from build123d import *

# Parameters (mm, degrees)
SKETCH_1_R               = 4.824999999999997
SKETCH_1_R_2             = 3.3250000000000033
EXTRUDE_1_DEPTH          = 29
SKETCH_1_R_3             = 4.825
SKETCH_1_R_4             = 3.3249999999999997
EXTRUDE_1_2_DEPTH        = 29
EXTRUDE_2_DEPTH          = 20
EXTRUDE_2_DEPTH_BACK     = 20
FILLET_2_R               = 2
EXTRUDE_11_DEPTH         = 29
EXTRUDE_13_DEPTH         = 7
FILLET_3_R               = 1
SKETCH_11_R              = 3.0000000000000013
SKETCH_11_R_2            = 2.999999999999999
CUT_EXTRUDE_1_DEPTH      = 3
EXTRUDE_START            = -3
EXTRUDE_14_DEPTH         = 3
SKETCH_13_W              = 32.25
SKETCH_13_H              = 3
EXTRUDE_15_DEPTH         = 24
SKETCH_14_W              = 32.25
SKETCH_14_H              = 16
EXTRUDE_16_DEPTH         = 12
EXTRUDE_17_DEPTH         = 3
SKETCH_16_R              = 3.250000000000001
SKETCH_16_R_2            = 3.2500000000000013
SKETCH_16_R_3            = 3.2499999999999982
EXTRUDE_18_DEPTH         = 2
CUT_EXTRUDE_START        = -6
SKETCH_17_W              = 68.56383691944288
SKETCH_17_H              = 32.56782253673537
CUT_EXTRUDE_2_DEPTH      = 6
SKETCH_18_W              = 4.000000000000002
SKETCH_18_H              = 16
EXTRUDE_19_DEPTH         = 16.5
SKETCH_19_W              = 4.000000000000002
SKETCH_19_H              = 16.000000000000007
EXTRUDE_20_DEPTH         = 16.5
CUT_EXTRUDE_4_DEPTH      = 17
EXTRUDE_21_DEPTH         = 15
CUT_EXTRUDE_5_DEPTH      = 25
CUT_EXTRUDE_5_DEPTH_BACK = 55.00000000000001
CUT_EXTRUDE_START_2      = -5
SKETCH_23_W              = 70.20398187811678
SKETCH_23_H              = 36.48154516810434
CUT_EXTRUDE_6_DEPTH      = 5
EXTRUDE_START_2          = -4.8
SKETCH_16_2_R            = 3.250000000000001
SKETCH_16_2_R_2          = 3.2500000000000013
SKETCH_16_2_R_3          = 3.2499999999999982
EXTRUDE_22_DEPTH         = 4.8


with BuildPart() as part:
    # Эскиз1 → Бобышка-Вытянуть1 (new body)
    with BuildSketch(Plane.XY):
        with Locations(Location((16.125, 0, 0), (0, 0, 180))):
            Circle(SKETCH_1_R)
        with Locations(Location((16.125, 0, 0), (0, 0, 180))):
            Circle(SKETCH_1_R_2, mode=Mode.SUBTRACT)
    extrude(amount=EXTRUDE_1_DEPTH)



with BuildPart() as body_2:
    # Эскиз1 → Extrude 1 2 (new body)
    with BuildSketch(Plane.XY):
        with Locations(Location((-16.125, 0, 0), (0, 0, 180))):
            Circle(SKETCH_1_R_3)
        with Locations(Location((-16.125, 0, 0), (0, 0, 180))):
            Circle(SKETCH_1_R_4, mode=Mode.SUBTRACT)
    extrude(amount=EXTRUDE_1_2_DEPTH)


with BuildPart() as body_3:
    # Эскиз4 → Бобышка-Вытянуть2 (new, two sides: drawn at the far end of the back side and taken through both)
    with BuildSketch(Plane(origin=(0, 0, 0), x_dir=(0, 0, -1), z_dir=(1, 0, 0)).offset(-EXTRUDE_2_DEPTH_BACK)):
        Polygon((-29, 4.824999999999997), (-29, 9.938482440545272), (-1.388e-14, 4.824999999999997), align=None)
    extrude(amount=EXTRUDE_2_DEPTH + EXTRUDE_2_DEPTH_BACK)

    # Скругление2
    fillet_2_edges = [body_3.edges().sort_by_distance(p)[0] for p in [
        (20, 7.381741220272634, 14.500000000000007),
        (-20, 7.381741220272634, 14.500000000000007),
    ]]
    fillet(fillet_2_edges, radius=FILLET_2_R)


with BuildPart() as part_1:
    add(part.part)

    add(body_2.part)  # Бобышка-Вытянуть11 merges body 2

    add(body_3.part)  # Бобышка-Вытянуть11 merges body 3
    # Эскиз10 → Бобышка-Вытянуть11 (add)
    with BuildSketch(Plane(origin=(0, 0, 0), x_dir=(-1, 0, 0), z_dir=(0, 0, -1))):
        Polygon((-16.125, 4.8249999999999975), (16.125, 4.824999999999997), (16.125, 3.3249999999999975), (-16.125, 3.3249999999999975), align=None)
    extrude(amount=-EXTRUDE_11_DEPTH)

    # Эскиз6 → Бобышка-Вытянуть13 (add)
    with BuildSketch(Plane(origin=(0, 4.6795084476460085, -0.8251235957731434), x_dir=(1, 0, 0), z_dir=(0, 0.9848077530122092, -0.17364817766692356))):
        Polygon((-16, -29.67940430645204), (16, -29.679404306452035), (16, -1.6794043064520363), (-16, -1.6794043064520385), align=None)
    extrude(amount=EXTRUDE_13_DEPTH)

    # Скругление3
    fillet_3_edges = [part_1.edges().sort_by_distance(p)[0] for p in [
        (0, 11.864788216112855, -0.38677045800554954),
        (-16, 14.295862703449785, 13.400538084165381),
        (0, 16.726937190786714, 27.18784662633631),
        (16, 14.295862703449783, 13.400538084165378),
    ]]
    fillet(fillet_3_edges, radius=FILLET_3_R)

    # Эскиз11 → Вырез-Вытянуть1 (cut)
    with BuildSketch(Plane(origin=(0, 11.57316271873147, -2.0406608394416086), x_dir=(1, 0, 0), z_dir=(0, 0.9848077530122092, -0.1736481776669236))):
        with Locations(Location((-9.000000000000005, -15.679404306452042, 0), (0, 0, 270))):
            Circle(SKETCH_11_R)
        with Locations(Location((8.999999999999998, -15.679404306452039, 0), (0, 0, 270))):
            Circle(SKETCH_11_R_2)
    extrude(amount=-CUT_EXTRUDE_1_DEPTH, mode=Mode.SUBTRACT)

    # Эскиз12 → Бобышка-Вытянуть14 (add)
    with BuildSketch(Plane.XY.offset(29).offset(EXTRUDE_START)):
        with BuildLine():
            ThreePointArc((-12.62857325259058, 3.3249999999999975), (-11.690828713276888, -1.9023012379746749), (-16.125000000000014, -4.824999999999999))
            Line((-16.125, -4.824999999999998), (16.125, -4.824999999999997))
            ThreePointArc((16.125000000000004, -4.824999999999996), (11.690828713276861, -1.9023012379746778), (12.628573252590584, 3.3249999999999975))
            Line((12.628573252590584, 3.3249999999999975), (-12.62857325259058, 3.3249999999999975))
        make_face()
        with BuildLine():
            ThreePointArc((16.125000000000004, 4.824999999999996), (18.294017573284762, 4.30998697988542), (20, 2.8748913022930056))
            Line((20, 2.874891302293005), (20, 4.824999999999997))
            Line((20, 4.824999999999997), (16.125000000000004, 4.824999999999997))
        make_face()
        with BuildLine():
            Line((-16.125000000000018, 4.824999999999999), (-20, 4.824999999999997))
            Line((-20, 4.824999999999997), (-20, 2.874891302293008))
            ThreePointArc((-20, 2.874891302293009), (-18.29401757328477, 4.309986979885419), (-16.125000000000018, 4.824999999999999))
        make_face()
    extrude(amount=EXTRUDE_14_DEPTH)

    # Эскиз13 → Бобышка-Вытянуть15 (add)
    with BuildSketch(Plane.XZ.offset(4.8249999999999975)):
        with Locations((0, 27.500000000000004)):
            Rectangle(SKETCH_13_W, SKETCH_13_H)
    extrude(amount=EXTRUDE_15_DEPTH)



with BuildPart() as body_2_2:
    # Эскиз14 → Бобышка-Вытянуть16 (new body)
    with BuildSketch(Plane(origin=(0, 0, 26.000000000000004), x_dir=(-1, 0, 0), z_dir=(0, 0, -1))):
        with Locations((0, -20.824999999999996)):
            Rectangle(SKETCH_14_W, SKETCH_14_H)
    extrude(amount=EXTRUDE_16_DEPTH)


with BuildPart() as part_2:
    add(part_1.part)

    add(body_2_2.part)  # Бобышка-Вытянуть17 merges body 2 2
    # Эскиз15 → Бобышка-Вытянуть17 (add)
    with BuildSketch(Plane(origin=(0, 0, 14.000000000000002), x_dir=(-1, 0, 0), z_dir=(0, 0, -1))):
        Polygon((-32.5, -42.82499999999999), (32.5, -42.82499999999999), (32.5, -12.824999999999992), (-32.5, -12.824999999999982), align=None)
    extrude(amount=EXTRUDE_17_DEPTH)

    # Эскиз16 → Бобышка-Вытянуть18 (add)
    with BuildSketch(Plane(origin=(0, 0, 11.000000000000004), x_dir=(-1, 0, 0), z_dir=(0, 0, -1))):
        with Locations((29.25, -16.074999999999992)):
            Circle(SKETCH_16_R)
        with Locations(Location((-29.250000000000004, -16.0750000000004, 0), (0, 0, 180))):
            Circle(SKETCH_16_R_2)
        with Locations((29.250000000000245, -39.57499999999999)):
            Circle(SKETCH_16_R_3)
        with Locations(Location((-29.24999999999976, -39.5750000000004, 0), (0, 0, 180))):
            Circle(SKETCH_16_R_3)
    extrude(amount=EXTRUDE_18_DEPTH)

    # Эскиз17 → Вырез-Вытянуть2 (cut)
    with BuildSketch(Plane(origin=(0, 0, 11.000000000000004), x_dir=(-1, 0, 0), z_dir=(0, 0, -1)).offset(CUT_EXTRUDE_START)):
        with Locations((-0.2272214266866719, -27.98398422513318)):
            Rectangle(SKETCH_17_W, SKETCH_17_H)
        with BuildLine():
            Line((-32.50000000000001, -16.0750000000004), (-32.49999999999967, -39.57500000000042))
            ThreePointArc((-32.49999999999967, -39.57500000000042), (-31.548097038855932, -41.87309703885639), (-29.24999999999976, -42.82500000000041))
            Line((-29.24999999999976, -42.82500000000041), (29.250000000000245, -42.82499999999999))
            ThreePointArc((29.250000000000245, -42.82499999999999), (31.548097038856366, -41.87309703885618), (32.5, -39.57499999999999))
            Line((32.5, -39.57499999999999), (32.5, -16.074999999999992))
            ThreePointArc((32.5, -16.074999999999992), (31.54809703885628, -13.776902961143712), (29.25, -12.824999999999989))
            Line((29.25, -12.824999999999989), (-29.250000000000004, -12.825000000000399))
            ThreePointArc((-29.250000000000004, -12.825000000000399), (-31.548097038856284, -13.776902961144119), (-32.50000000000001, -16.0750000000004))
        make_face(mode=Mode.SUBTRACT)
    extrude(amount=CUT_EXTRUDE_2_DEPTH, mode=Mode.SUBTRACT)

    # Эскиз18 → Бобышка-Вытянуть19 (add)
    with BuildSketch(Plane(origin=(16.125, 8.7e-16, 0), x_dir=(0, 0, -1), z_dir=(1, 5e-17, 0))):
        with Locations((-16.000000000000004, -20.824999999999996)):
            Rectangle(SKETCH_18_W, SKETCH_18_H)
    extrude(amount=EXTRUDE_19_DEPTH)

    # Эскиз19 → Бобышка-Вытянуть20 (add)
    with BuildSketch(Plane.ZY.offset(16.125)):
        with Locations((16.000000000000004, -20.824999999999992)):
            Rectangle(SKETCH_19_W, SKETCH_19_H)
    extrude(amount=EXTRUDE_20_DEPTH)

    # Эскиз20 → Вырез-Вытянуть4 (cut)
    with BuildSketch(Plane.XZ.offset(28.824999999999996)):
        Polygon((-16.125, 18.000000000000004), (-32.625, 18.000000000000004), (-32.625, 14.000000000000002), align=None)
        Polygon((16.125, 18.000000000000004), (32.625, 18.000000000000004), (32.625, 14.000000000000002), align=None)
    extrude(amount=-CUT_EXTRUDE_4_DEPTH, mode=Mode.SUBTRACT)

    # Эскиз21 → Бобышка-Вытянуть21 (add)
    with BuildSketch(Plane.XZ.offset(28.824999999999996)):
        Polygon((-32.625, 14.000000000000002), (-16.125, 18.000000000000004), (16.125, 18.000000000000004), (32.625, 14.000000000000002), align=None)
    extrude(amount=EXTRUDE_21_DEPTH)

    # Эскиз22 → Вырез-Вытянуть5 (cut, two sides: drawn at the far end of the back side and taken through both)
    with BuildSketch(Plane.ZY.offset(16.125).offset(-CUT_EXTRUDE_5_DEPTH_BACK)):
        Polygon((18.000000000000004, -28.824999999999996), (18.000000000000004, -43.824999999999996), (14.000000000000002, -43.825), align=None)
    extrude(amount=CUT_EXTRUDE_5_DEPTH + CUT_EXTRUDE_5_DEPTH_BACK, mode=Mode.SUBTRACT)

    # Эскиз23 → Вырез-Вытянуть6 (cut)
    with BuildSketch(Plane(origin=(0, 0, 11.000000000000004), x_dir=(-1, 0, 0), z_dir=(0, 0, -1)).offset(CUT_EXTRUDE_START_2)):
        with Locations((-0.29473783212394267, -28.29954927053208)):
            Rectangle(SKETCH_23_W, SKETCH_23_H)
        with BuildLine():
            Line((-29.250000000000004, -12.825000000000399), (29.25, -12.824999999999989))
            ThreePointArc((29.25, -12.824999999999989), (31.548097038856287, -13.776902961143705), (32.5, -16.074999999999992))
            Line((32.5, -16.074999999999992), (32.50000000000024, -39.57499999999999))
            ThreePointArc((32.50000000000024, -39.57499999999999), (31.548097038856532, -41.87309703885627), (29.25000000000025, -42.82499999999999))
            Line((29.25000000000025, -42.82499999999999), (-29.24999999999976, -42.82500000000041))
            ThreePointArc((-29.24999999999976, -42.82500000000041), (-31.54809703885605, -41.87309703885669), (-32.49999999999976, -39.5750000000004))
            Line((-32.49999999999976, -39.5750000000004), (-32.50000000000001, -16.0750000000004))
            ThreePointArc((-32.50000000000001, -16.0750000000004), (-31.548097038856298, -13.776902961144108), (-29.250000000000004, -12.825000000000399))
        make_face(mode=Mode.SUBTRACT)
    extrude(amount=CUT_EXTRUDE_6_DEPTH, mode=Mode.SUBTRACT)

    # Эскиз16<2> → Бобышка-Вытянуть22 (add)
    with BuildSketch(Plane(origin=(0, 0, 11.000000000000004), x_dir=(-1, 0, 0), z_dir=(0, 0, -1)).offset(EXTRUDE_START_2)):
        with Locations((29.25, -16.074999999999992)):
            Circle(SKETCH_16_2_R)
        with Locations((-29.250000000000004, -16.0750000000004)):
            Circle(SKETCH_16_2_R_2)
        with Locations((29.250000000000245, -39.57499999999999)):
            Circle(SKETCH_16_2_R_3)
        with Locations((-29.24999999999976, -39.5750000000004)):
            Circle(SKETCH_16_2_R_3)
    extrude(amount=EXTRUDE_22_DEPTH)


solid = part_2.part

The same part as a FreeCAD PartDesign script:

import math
import FreeCAD as App
import Part
import Sketcher
from FreeCAD import Vector
Q = App.Units.Quantity


def edges_at(feature, points):
    """Names of the edges that pass closest to the given points."""
    edges = feature.Shape.Edges
    near = lambda p: min(range(len(edges)), key=lambda i: edges[i].distToShape(Part.Vertex(*p))[0])
    return sorted({f"Edge{near(p) + 1}" for p in points})

doc = App.newDocument("Part")
body = doc.addObject("PartDesign::Body", "Body")

# Sketch on XY plane
sketch1 = doc.addObject("Sketcher::SketchObject", "Sketch")
body.addObject(sketch1)
sketch1.AttachmentSupport = (doc.XY_Plane, [""])
sketch1.MapMode = "FlatFace"
sketch1.addGeometry([
    Part.Circle(Vector(16.1, 0, 0), Vector(0, 0, 1), 4.8),
    Part.Circle(Vector(16.1, 0, 0), Vector(0, 0, 1), 3.3),
], False)
sketch1.addConstraint([
    Sketcher.Constraint("Coincident", 1, 3, 0, 3),
    Sketcher.Constraint("PointOnObject", 0, 3, -1),
    Sketcher.Constraint("Diameter", 0, Q("9.65 mm")),
    Sketcher.Constraint("Diameter", 1, Q("6.65 mm")),
    Sketcher.Constraint("DistanceX", -1, 1, 0, 3, Q("16.125 mm")),
])
pad1 = doc.addObject("PartDesign::Pad", "Pad")
body.addObject(pad1)
pad1.Profile = sketch1
pad1.Length = 29
body2 = doc.addObject("PartDesign::Body", "Body001")

# Sketch on XY plane
sketch2 = doc.addObject("Sketcher::SketchObject", "Sketch001")
body2.addObject(sketch2)
sketch2.AttachmentSupport = (doc.getObject("XY_Plane001"), [""])
sketch2.MapMode = "FlatFace"
sketch2.addGeometry([
    Part.Circle(Vector(-16.1, 0, 0), Vector(0, 0, 1), 4.8),
    Part.Circle(Vector(-16.1, 0, 0), Vector(0, 0, 1), 3.3),
], False)
sketch2.addConstraint([
    Sketcher.Constraint("Coincident", 1, 3, 0, 3),
    Sketcher.Constraint("PointOnObject", 0, 3, -1),
    Sketcher.Constraint("Diameter", 0, Q("9.65 mm")),
    Sketcher.Constraint("Diameter", 1, Q("6.65 mm")),
    Sketcher.Constraint("DistanceX", 0, 3, -1, 1, Q("16.125 mm")),
])
pad2 = doc.addObject("PartDesign::Pad", "Pad001")
body2.addObject(pad2)
pad2.Profile = sketch2
pad2.Length = 29
body3 = doc.addObject("PartDesign::Body", "Body002")

# Sketch on YZ plane
sketch3 = doc.addObject("Sketcher::SketchObject", "Sketch002")
body3.addObject(sketch3)
sketch3.AttachmentSupport = (doc.getObject("YZ_Plane002"), [""])
sketch3.MapMode = "FlatFace"
sketch3.addGeometry([
    Part.LineSegment(Vector(10, 29, 0), Vector(5, 29, 0)),
    Part.LineSegment(Vector(5, 29, 0), Vector(5, 0, 0)),
    Part.LineSegment(Vector(5, 0, 0), Vector(10, 29, 0)),
], False)
sketch3.addConstraint([
    Sketcher.Constraint("Coincident", 0, 2, 1, 1),
    Sketcher.Constraint("Coincident", 1, 2, 2, 1),
    Sketcher.Constraint("Coincident", 2, 2, 0, 1),
    Sketcher.Constraint("Horizontal", 0),
    Sketcher.Constraint("Vertical", 1),
    Sketcher.Constraint("PointOnObject", 1, 2, -1),
    Sketcher.Constraint("DistanceY", 1, 2, 1, 1, Q("29 mm")),
    Sketcher.Constraint("Angle", 2, Q("80 deg")),
    Sketcher.Constraint("DistanceX", -1, 1, 0, 2, Q("4.825 mm")),
])
pad3 = doc.addObject("PartDesign::Pad", "Pad002")
body3.addObject(pad3)
pad3.Profile = sketch3
pad3.Type = "TwoLengths"
pad3.Length = 20
pad3.Length2 = 20
doc.recompute()

fillet = doc.addObject("PartDesign::Fillet", "Fillet")
body3.addObject(fillet)
fillet.Base = (pad3, edges_at(pad3, [(20, 7.382, 14.5), (-20, 7.382, 14.5)]))
fillet.Radius = 2
body.AllowCompound = True
doc.recompute()

boolean = doc.addObject("PartDesign::Boolean", "Boolean")
body.addObject(boolean)
boolean.Type = "Fuse"
boolean.addObjects([body2])
doc.recompute()

boolean2 = doc.addObject("PartDesign::Boolean", "Boolean001")
body.addObject(boolean2)
boolean2.Type = "Fuse"
boolean2.addObjects([body3])

# Sketch on XY plane
sketch4 = doc.addObject("Sketcher::SketchObject", "Sketch003")
body.addObject(sketch4)
sketch4.AttachmentSupport = (doc.XY_Plane, [""])
sketch4.MapMode = "FlatFace"
sketch4.addGeometry([
    Part.LineSegment(Vector(-16.1, 4.8, 0), Vector(16.1, 4.8, 0)),
    Part.LineSegment(Vector(16.1, 4.8, 0), Vector(16.1, 3.3, 0)),
    Part.LineSegment(Vector(16.1, 3.3, 0), Vector(-16.1, 3.3, 0)),
    Part.LineSegment(Vector(-16.1, 3.3, 0), Vector(-16.1, 4.8, 0)),
], False)
sketch4.addConstraint([
    Sketcher.Constraint("Coincident", 0, 2, 1, 1),
    Sketcher.Constraint("Coincident", 1, 2, 2, 1),
    Sketcher.Constraint("Coincident", 2, 2, 3, 1),
    Sketcher.Constraint("Coincident", 3, 2, 0, 1),
    Sketcher.Constraint("Horizontal", 0),
    Sketcher.Constraint("Vertical", 1),
    Sketcher.Constraint("Horizontal", 2),
    Sketcher.Constraint("Vertical", 3),
    Sketcher.Constraint("DistanceY", 1, 2, 1, 1, Q("1.5 mm")),
    Sketcher.Constraint("DistanceX", 0, 1, 0, 2, Q("32.25 mm")),
    Sketcher.Constraint("DistanceX", -1, 1, 0, 2, Q("16.125 mm")),
    Sketcher.Constraint("DistanceY", -1, 1, 0, 2, Q("4.825 mm")),
])
pad4 = doc.addObject("PartDesign::Pad", "Pad003")
body.addObject(pad4)
pad4.Profile = sketch4
pad4.Length = 29

# Sketch on an angled plane
sketch5 = doc.addObject("Sketcher::SketchObject", "Sketch004")
body.addObject(sketch5)
sketch5.Placement = App.Placement(Vector(0, 4.679508, -0.825124), App.Rotation(Vector(1, 0, 0), Vector(0, -0.173648178, -0.984807753), Vector(0, 0.984807753, -0.173648178), "ZXY"))
sketch5.addGeometry([
    Part.LineSegment(Vector(-16, -30, 0), Vector(16, -30, 0)),
    Part.LineSegment(Vector(16, -30, 0), Vector(16, -2, 0)),
    Part.LineSegment(Vector(16, -2, 0), Vector(-16, -2, 0)),
    Part.LineSegment(Vector(-16, -2, 0), Vector(-16, -30, 0)),
], False)
sketch5.addConstraint([
    Sketcher.Constraint("Coincident", 0, 2, 1, 1),
    Sketcher.Constraint("Coincident", 1, 2, 2, 1),
    Sketcher.Constraint("Coincident", 2, 2, 3, 1),
    Sketcher.Constraint("Coincident", 3, 2, 0, 1),
    Sketcher.Constraint("Horizontal", 0),
    Sketcher.Constraint("Vertical", 1),
    Sketcher.Constraint("Horizontal", 2),
    Sketcher.Constraint("Vertical", 3),
    Sketcher.Constraint("DistanceX", 0, 1, 0, 2, Q("32 mm")),
    Sketcher.Constraint("DistanceY", 1, 1, 1, 2, Q("28 mm")),
    Sketcher.Constraint("DistanceX", -1, 1, 0, 2, Q("16 mm")),
    Sketcher.Constraint("DistanceY", 0, 2, -1, 1, Q("29.679404 mm")),
])
pad5 = doc.addObject("PartDesign::Pad", "Pad004")
body.addObject(pad5)
pad5.Profile = sketch5
pad5.Length = 7
doc.recompute()

fillet2 = doc.addObject("PartDesign::Fillet", "Fillet001")
body.addObject(fillet2)
fillet2.Base = (pad5, edges_at(pad5, [
    (0, 11.865, -0.387),
    (-16, 14.296, 13.401),
    (0, 16.727, 27.188),
    (16, 14.296, 13.401),
]))
fillet2.Radius = 1

# Sketch on an angled plane
sketch6 = doc.addObject("Sketcher::SketchObject", "Sketch005")
body.addObject(sketch6)
sketch6.Placement = App.Placement(Vector(0, 11.573163, -2.040661), App.Rotation(Vector(1, 0, 0), Vector(0, -0.173648178, -0.984807753), Vector(0, 0.984807753, -0.173648178), "ZXY"))
sketch6.addGeometry([
    Part.Circle(Vector(-9, -15.7, 0), Vector(0, 0, 1), 3),
    Part.Circle(Vector(9, -15.7, 0), Vector(0, 0, 1), 3),
], False)
sketch6.addConstraint([
    Sketcher.Constraint("Equal", 0, 1),
    Sketcher.Constraint("Symmetric", 0, 3, 1, 3, -2),
    Sketcher.Constraint("Diameter", 0, Q("6 mm")),
    Sketcher.Constraint("DistanceX", 0, 3, -1, 1, Q("9 mm")),
    Sketcher.Constraint("DistanceY", 0, 3, -1, 1, Q("15.679404 mm")),
])
pocket1 = doc.addObject("PartDesign::Pocket", "Pocket")
body.addObject(pocket1)
pocket1.Profile = sketch6
pocket1.Length = 3

# Sketch on XY plane
sketch7 = doc.addObject("Sketcher::SketchObject", "Sketch006")
body.addObject(sketch7)
sketch7.AttachmentSupport = (doc.XY_Plane, [""])
sketch7.MapMode = "FlatFace"
sketch7.AttachmentOffset = App.Placement(Vector(0, 0, 26), App.Rotation())
sketch7.addGeometry([
    Part.ArcOfCircle(Part.Circle(Vector(-16.1, 0, 0), Vector(0, 0, 1), 4.8), math.radians(-90), math.radians(44)),  # 0
    Part.LineSegment(Vector(-16.1, -4.8, 0), Vector(16.1, -4.8, 0)),  # 1
    Part.ArcOfCircle(Part.Circle(Vector(16.1, 0, 0), Vector(0, 0, 1), 4.8), math.radians(136), math.radians(270)),  # 2
    Part.LineSegment(Vector(12.6, 3.3, 0), Vector(-12.6, 3.3, 0)),  # 3
    Part.ArcOfCircle(Part.Circle(Vector(16.1, 0, 0), Vector(0, 0, 1), 4.8), math.radians(37), math.radians(90)),  # 4
    Part.LineSegment(Vector(20, 2.9, 0), Vector(20, 4.8, 0)),  # 5
    Part.LineSegment(Vector(20, 4.8, 0), Vector(16.1, 4.8, 0)),  # 6
    Part.LineSegment(Vector(-16.1, 4.8, 0), Vector(-20, 4.8, 0)),  # 7
    Part.LineSegment(Vector(-20, 4.8, 0), Vector(-20, 2.9, 0)),  # 8
    Part.ArcOfCircle(Part.Circle(Vector(-16.1, 0, 0), Vector(0, 0, 1), 4.8), math.radians(90), math.radians(143)),  # 9
], False)
sketch7.addConstraint([
    Sketcher.Constraint("Tangent", 0, 1, 1, 1),
    Sketcher.Constraint("Tangent", 1, 2, 2, 2),
    Sketcher.Constraint("Coincident", 2, 1, 3, 1),
    Sketcher.Constraint("Coincident", 3, 2, 0, 2),
    Sketcher.Constraint("Coincident", 4, 1, 5, 1),
    Sketcher.Constraint("Coincident", 5, 2, 6, 1),
    Sketcher.Constraint("Tangent", 6, 2, 4, 2),
    Sketcher.Constraint("Coincident", 7, 2, 8, 1),
    Sketcher.Constraint("Coincident", 8, 2, 9, 2),
    Sketcher.Constraint("Tangent", 9, 1, 7, 1),
    Sketcher.Constraint("Horizontal", 1),
    Sketcher.Constraint("Horizontal", 3),
    Sketcher.Constraint("Vertical", 5),
    Sketcher.Constraint("Horizontal", 6),
    Sketcher.Constraint("Horizontal", 7),
    Sketcher.Constraint("Vertical", 8),
    Sketcher.Constraint("Coincident", 4, 3, 2, 3),
    Sketcher.Constraint("Coincident", 9, 3, 0, 3),
    Sketcher.Constraint("Equal", 0, 2),
    Sketcher.Constraint("Equal", 2, 4),
    Sketcher.Constraint("Equal", 4, 9),
    Sketcher.Constraint("Symmetric", 0, 3, 2, 3, -1, 1),
    Sketcher.Constraint("Horizontal", 4, 1, 8, 2),
    Sketcher.Constraint("DistanceX", -1, 1, 4, 1, Q("20 mm")),
    Sketcher.Constraint("Radius", 0, Q("4.825 mm")),
    Sketcher.Constraint("DistanceX", 1, 1, 1, 2, Q("32.25 mm")),
    Sketcher.Constraint("DistanceY", 2, 1, 5, 2, Q("1.5 mm")),
])
pad6 = doc.addObject("PartDesign::Pad", "Pad005")
body.addObject(pad6)
pad6.Profile = sketch7
pad6.Length = 3

# Sketch on XZ plane
sketch8 = doc.addObject("Sketcher::SketchObject", "Sketch007")
body.addObject(sketch8)
sketch8.AttachmentSupport = (doc.XZ_Plane, [""])
sketch8.MapMode = "FlatFace"
sketch8.AttachmentOffset = App.Placement(Vector(0, 0, 4.825), App.Rotation())
sketch8.addGeometry([
    Part.LineSegment(Vector(-16.1, 29, 0), Vector(-16.1, 26, 0)),
    Part.LineSegment(Vector(-16.1, 26, 0), Vector(16.1, 26, 0)),
    Part.LineSegment(Vector(16.1, 26, 0), Vector(16.1, 29, 0)),
    Part.LineSegment(Vector(16.1, 29, 0), Vector(-16.1, 29, 0)),
], False)
sketch8.addConstraint([
    Sketcher.Constraint("Coincident", 0, 2, 1, 1),
    Sketcher.Constraint("Coincident", 1, 2, 2, 1),
    Sketcher.Constraint("Coincident", 2, 2, 3, 1),
    Sketcher.Constraint("Coincident", 3, 2, 0, 1),
    Sketcher.Constraint("Vertical", 0),
    Sketcher.Constraint("Horizontal", 1),
    Sketcher.Constraint("Vertical", 2),
    Sketcher.Constraint("Horizontal", 3),
    Sketcher.Constraint("DistanceY", 0, 2, 0, 1, Q("3 mm")),
    Sketcher.Constraint("DistanceY", -1, 1, 0, 2, Q("26 mm")),
    Sketcher.Constraint("DistanceX", 1, 1, 1, 2, Q("32.25 mm")),
    Sketcher.Constraint("DistanceX", 0, 2, -1, 1, Q("16.125 mm")),
])
pad7 = doc.addObject("PartDesign::Pad", "Pad006")
body.addObject(pad7)
pad7.Profile = sketch8
pad7.Length = 24
body4 = doc.addObject("PartDesign::Body", "Body003")

# Sketch on XY plane
sketch9 = doc.addObject("Sketcher::SketchObject", "Sketch008")
body4.addObject(sketch9)
sketch9.AttachmentSupport = (doc.getObject("XY_Plane003"), [""])
sketch9.MapMode = "FlatFace"
sketch9.AttachmentOffset = App.Placement(Vector(0, 0, 26), App.Rotation())
sketch9.addGeometry([
    Part.LineSegment(Vector(16, -13, 0), Vector(16, -29, 0)),
    Part.LineSegment(Vector(16, -29, 0), Vector(-16, -29, 0)),
    Part.LineSegment(Vector(-16, -29, 0), Vector(-16, -13, 0)),
    Part.LineSegment(Vector(-16, -13, 0), Vector(16, -13, 0)),
], False)
sketch9.addConstraint([
    Sketcher.Constraint("Coincident", 0, 2, 1, 1),
    Sketcher.Constraint("Coincident", 1, 2, 2, 1),
    Sketcher.Constraint("Coincident", 2, 2, 3, 1),
    Sketcher.Constraint("Coincident", 3, 2, 0, 1),
    Sketcher.Constraint("Vertical", 0),
    Sketcher.Constraint("Horizontal", 1),
    Sketcher.Constraint("Vertical", 2),
    Sketcher.Constraint("Horizontal", 3),
    Sketcher.Constraint("DistanceY", 0, 2, 0, 1, Q("16 mm")),
    Sketcher.Constraint("DistanceX", 1, 2, 1, 1, Q("32.25 mm")),
    Sketcher.Constraint("DistanceX", -1, 1, 0, 2, Q("16.125 mm")),
    Sketcher.Constraint("DistanceY", 0, 2, -1, 1, Q("28.825 mm")),
])
pad8 = doc.addObject("PartDesign::Pad", "Pad007")
body4.addObject(pad8)
pad8.Profile = sketch9
pad8.Length = 12
pad8.Reversed = True
doc.recompute()

boolean3 = doc.addObject("PartDesign::Boolean", "Boolean002")
body.addObject(boolean3)
boolean3.Type = "Fuse"
boolean3.addObjects([body4])

# Sketch on XY plane
sketch10 = doc.addObject("Sketcher::SketchObject", "Sketch009")
body.addObject(sketch10)
sketch10.AttachmentSupport = (doc.XY_Plane, [""])
sketch10.MapMode = "FlatFace"
sketch10.AttachmentOffset = App.Placement(Vector(0, 0, 14), App.Rotation())
sketch10.addGeometry([
    Part.LineSegment(Vector(32, -43, 0), Vector(-32, -43, 0)),
    Part.LineSegment(Vector(-32, -43, 0), Vector(-32, -13, 0)),
    Part.LineSegment(Vector(-32, -13, 0), Vector(32, -13, 0)),
    Part.LineSegment(Vector(32, -13, 0), Vector(32, -43, 0)),
], False)
sketch10.addConstraint([
    Sketcher.Constraint("Coincident", 0, 2, 1, 1),
    Sketcher.Constraint("Coincident", 1, 2, 2, 1),
    Sketcher.Constraint("Coincident", 2, 2, 3, 1),
    Sketcher.Constraint("Coincident", 3, 2, 0, 1),
    Sketcher.Constraint("Horizontal", 0),
    Sketcher.Constraint("Vertical", 1),
    Sketcher.Constraint("Horizontal", 2),
    Sketcher.Constraint("Vertical", 3),
    Sketcher.Constraint("DistanceX", 0, 2, 0, 1, Q("65 mm")),
    Sketcher.Constraint("DistanceY", 1, 1, 1, 2, Q("30 mm")),
    Sketcher.Constraint("DistanceX", 0, 2, -1, 1, Q("32.5 mm")),
    Sketcher.Constraint("DistanceY", 0, 2, -1, 1, Q("42.825 mm")),
])
pad9 = doc.addObject("PartDesign::Pad", "Pad008")
body.addObject(pad9)
pad9.Profile = sketch10
pad9.Length = 3
pad9.Reversed = True

# Sketch on XY plane
sketch11 = doc.addObject("Sketcher::SketchObject", "Sketch010")
body.addObject(sketch11)
sketch11.AttachmentSupport = (doc.XY_Plane, [""])
sketch11.MapMode = "FlatFace"
sketch11.AttachmentOffset = App.Placement(Vector(0, 0, 11), App.Rotation())
sketch11.addGeometry([
    Part.Circle(Vector(-29.2, -16.1, 0), Vector(0, 0, 1), 3.2),
    Part.Circle(Vector(29.2, -16.1, 0), Vector(0, 0, 1), 3.2),
    Part.Circle(Vector(-29.2, -39.6, 0), Vector(0, 0, 1), 3.2),
    Part.Circle(Vector(29.2, -39.6, 0), Vector(0, 0, 1), 3.2),
], False)
sketch11.addConstraint([
    Sketcher.Constraint("Equal", 0, 1),
    Sketcher.Constraint("Equal", 1, 2),
    Sketcher.Constraint("Equal", 2, 3),
    Sketcher.Constraint("Symmetric", 0, 3, 1, 3, -2),
    Sketcher.Constraint("Symmetric", 2, 3, 3, 3, -2),
    Sketcher.Constraint("Vertical", 0, 3, 2, 3),
    Sketcher.Constraint("Diameter", 0, Q("6.5 mm")),
    Sketcher.Constraint("DistanceX", 0, 3, 1, 3, Q("58.5 mm")),
    Sketcher.Constraint("DistanceY", 2, 3, 0, 3, Q("23.5 mm")),
    Sketcher.Constraint("DistanceY", 0, 3, -1, 1, Q("16.075 mm")),
])
pad10 = doc.addObject("PartDesign::Pad", "Pad009")
body.addObject(pad10)
pad10.Profile = sketch11
pad10.Length = 2
pad10.Reversed = True

# Sketch on XY plane
sketch12 = doc.addObject("Sketcher::SketchObject", "Sketch011")
body.addObject(sketch12)
sketch12.AttachmentSupport = (doc.XY_Plane, [""])
sketch12.MapMode = "FlatFace"
sketch12.AttachmentOffset = App.Placement(Vector(0, 0, 17), App.Rotation())
sketch12.addGeometry([
    Part.LineSegment(Vector(34.5, -11.7, 0), Vector(34.5, -44.3, 0)),  # 0
    Part.LineSegment(Vector(34.5, -44.3, 0), Vector(-34.1, -44.3, 0)),  # 1
    Part.LineSegment(Vector(-34.1, -44.3, 0), Vector(-34.1, -11.7, 0)),  # 2
    Part.LineSegment(Vector(-34.1, -11.7, 0), Vector(34.5, -11.7, 0)),  # 3
    Part.LineSegment(Vector(32.5, -39.6, 0), Vector(32.5, -16.1, 0)),  # 4
    Part.ArcOfCircle(Part.Circle(Vector(29.2, -16.1, 0), Vector(0, 0, 1), 3.2), math.radians(0), math.radians(90)),  # 5
    Part.LineSegment(Vector(29.2, -12.8, 0), Vector(-29.2, -12.8, 0)),  # 6
    Part.ArcOfCircle(Part.Circle(Vector(-29.2, -16.1, 0), Vector(0, 0, 1), 3.2), math.radians(90), math.radians(180)),  # 7
    Part.LineSegment(Vector(-32.5, -16.1, 0), Vector(-32.5, -39.6, 0)),  # 8
    Part.ArcOfCircle(Part.Circle(Vector(-29.2, -39.6, 0), Vector(0, 0, 1), 3.2), math.radians(180), math.radians(270)),  # 9
    Part.LineSegment(Vector(-29.2, -42.8, 0), Vector(29.2, -42.8, 0)),  # 10
    Part.ArcOfCircle(Part.Circle(Vector(29.2, -39.6, 0), Vector(0, 0, 1), 3.2), math.radians(-90), math.radians(0)),  # 11
], False)
sketch12.addConstraint([
    Sketcher.Constraint("Coincident", 0, 2, 1, 1),
    Sketcher.Constraint("Coincident", 1, 2, 2, 1),
    Sketcher.Constraint("Coincident", 2, 2, 3, 1),
    Sketcher.Constraint("Coincident", 3, 2, 0, 1),
    Sketcher.Constraint("Tangent", 4, 2, 5, 1),
    Sketcher.Constraint("Tangent", 5, 2, 6, 1),
    Sketcher.Constraint("Tangent", 6, 2, 7, 1),
    Sketcher.Constraint("Tangent", 7, 2, 8, 1),
    Sketcher.Constraint("Tangent", 8, 2, 9, 1),
    Sketcher.Constraint("Tangent", 9, 2, 10, 1),
    Sketcher.Constraint("Tangent", 10, 2, 11, 1),
    Sketcher.Constraint("Tangent", 11, 2, 4, 1),
    Sketcher.Constraint("Vertical", 0),
    Sketcher.Constraint("Horizontal", 1),
    Sketcher.Constraint("Vertical", 2),
    Sketcher.Constraint("Horizontal", 3),
    Sketcher.Constraint("Vertical", 4),
    Sketcher.Constraint("Horizontal", 6),
    Sketcher.Constraint("Vertical", 8),
    Sketcher.Constraint("Horizontal", 10),
    Sketcher.Constraint("Equal", 5, 7),
    Sketcher.Constraint("Equal", 7, 9),
    Sketcher.Constraint("Equal", 9, 11),
    Sketcher.Constraint("Radius", 5, Q("3.25 mm")),
    Sketcher.Constraint("DistanceX", 6, 2, 6, 1, Q("58.5 mm")),
    Sketcher.Constraint("DistanceY", 4, 1, 4, 2, Q("23.5 mm")),
    Sketcher.Constraint("DistanceX", -1, 1, 4, 2, Q("32.5 mm")),
    Sketcher.Constraint("DistanceY", 5, 3, -1, 1, Q("16.075 mm")),
    Sketcher.Constraint("DistanceX", 1, 2, 1, 1, Q("68.563837 mm")),
    Sketcher.Constraint("DistanceY", 0, 2, 0, 1, Q("32.567823 mm")),
    Sketcher.Constraint("DistanceX", -1, 1, 0, 2, Q("34.50914 mm")),
    Sketcher.Constraint("DistanceY", 0, 2, -1, 1, Q("44.267895 mm")),
])
pocket2 = doc.addObject("PartDesign::Pocket", "Pocket001")
body.addObject(pocket2)
pocket2.Profile = sketch12
pocket2.Length = 6

# Sketch on YZ plane
sketch13 = doc.addObject("Sketcher::SketchObject", "Sketch012")
body.addObject(sketch13)
sketch13.AttachmentSupport = (doc.YZ_Plane, [""])
sketch13.MapMode = "FlatFace"
sketch13.AttachmentOffset = App.Placement(Vector(0, 0, 16.125), App.Rotation())
sketch13.addGeometry([
    Part.LineSegment(Vector(-12.8, 18, 0), Vector(-28.8, 18, 0)),
    Part.LineSegment(Vector(-28.8, 18, 0), Vector(-28.8, 14, 0)),
    Part.LineSegment(Vector(-28.8, 14, 0), Vector(-12.8, 14, 0)),
    Part.LineSegment(Vector(-12.8, 14, 0), Vector(-12.8, 18, 0)),
], False)
sketch13.addConstraint([
    Sketcher.Constraint("Coincident", 0, 2, 1, 1),
    Sketcher.Constraint("Coincident", 1, 2, 2, 1),
    Sketcher.Constraint("Coincident", 2, 2, 3, 1),
    Sketcher.Constraint("Coincident", 3, 2, 0, 1),
    Sketcher.Constraint("Horizontal", 0),
    Sketcher.Constraint("Vertical", 1),
    Sketcher.Constraint("Horizontal", 2),
    Sketcher.Constraint("Vertical", 3),
    Sketcher.Constraint("DistanceX", 0, 2, 0, 1, Q("16 mm")),
    Sketcher.Constraint("DistanceY", 1, 2, 1, 1, Q("4 mm")),
    Sketcher.Constraint("DistanceY", -1, 1, 0, 2, Q("18 mm")),
    Sketcher.Constraint("DistanceX", 0, 2, -1, 1, Q("28.825 mm")),
])
pad11 = doc.addObject("PartDesign::Pad", "Pad010")
body.addObject(pad11)
pad11.Profile = sketch13
pad11.Length = 16.5

# Sketch on YZ plane
sketch14 = doc.addObject("Sketcher::SketchObject", "Sketch013")
body.addObject(sketch14)
sketch14.AttachmentSupport = (doc.YZ_Plane, [""])
sketch14.MapMode = "FlatFace"
sketch14.AttachmentOffset = App.Placement(Vector(0, 0, -16.125), App.Rotation())
sketch14.addGeometry([
    Part.LineSegment(Vector(-12.8, 14, 0), Vector(-28.8, 14, 0)),
    Part.LineSegment(Vector(-28.8, 14, 0), Vector(-28.8, 18, 0)),
    Part.LineSegment(Vector(-28.8, 18, 0), Vector(-12.8, 18, 0)),
    Part.LineSegment(Vector(-12.8, 18, 0), Vector(-12.8, 14, 0)),
], False)
sketch14.addConstraint([
    Sketcher.Constraint("Coincident", 0, 2, 1, 1),
    Sketcher.Constraint("Coincident", 1, 2, 2, 1),
    Sketcher.Constraint("Coincident", 2, 2, 3, 1),
    Sketcher.Constraint("Coincident", 3, 2, 0, 1),
    Sketcher.Constraint("Horizontal", 0),
    Sketcher.Constraint("Vertical", 1),
    Sketcher.Constraint("Horizontal", 2),
    Sketcher.Constraint("Vertical", 3),
    Sketcher.Constraint("DistanceX", 0, 2, 0, 1, Q("16 mm")),
    Sketcher.Constraint("DistanceY", 1, 1, 1, 2, Q("4 mm")),
    Sketcher.Constraint("DistanceY", -1, 1, 0, 2, Q("14 mm")),
    Sketcher.Constraint("DistanceX", 0, 2, -1, 1, Q("28.825 mm")),
])
pad12 = doc.addObject("PartDesign::Pad", "Pad011")
body.addObject(pad12)
pad12.Profile = sketch14
pad12.Length = 16.5
pad12.Reversed = True

# Sketch on XZ plane
sketch15 = doc.addObject("Sketcher::SketchObject", "Sketch014")
body.addObject(sketch15)
sketch15.AttachmentSupport = (doc.XZ_Plane, [""])
sketch15.MapMode = "FlatFace"
sketch15.AttachmentOffset = App.Placement(Vector(0, 0, 28.825), App.Rotation())
sketch15.addGeometry([
    Part.LineSegment(Vector(-16.1, 18, 0), Vector(-32.6, 18, 0)),  # 0
    Part.LineSegment(Vector(-32.6, 18, 0), Vector(-32.6, 14, 0)),  # 1
    Part.LineSegment(Vector(-32.6, 14, 0), Vector(-16.1, 18, 0)),  # 2
    Part.LineSegment(Vector(32.6, 18, 0), Vector(16.1, 18, 0)),  # 3
    Part.LineSegment(Vector(16.1, 18, 0), Vector(32.6, 14, 0)),  # 4
    Part.LineSegment(Vector(32.6, 14, 0), Vector(32.6, 18, 0)),  # 5
], False)
sketch15.addConstraint([
    Sketcher.Constraint("Coincident", 0, 2, 1, 1),
    Sketcher.Constraint("Coincident", 1, 2, 2, 1),
    Sketcher.Constraint("Coincident", 2, 2, 0, 1),
    Sketcher.Constraint("Coincident", 3, 2, 4, 1),
    Sketcher.Constraint("Coincident", 4, 2, 5, 1),
    Sketcher.Constraint("Coincident", 5, 2, 3, 1),
    Sketcher.Constraint("Horizontal", 0),
    Sketcher.Constraint("Vertical", 1),
    Sketcher.Constraint("Horizontal", 3),
    Sketcher.Constraint("Vertical", 5),
    Sketcher.Constraint("Symmetric", 2, 2, 3, 2, -2),
    Sketcher.Constraint("Symmetric", 1, 2, 4, 2, -2),
    Sketcher.Constraint("DistanceY", 1, 2, 1, 1, Q("4 mm")),
    Sketcher.Constraint("DistanceX", 0, 2, 0, 1, Q("16.5 mm")),
    Sketcher.Constraint("DistanceY", -1, 1, 0, 2, Q("18 mm")),
    Sketcher.Constraint("DistanceX", 2, 2, 3, 2, Q("32.25 mm")),
])
pocket3 = doc.addObject("PartDesign::Pocket", "Pocket002")
body.addObject(pocket3)
pocket3.Profile = sketch15
pocket3.Length = 17

# Sketch on XZ plane
sketch16 = doc.addObject("Sketcher::SketchObject", "Sketch015")
body.addObject(sketch16)
sketch16.AttachmentSupport = (doc.XZ_Plane, [""])
sketch16.MapMode = "FlatFace"
sketch16.AttachmentOffset = App.Placement(Vector(0, 0, 28.825), App.Rotation())
sketch16.addGeometry([
    Part.LineSegment(Vector(-16, 18, 0), Vector(-33, 14, 0)),
    Part.LineSegment(Vector(-33, 14, 0), Vector(33, 14, 0)),
    Part.LineSegment(Vector(33, 14, 0), Vector(16, 18, 0)),
    Part.LineSegment(Vector(16, 18, 0), Vector(-16, 18, 0)),
], False)
sketch16.addConstraint([
    Sketcher.Constraint("Coincident", 0, 2, 1, 1),
    Sketcher.Constraint("Coincident", 1, 2, 2, 1),
    Sketcher.Constraint("Coincident", 2, 2, 3, 1),
    Sketcher.Constraint("Coincident", 3, 2, 0, 1),
    Sketcher.Constraint("Horizontal", 1),
    Sketcher.Constraint("Horizontal", 3),
    Sketcher.Constraint("Equal", 0, 2),
    Sketcher.Constraint("DistanceY", -1, 1, 0, 2, Q("14 mm")),
    Sketcher.Constraint("DistanceY", -1, 1, 2, 2, Q("18 mm")),
    Sketcher.Constraint("DistanceX", 1, 1, 1, 2, Q("65.25 mm")),
    Sketcher.Constraint("DistanceX", 3, 2, 3, 1, Q("32.25 mm")),
    Sketcher.Constraint("DistanceX", 0, 2, -1, 1, Q("32.625 mm")),
])
pad13 = doc.addObject("PartDesign::Pad", "Pad012")
body.addObject(pad13)
pad13.Profile = sketch16
pad13.Length = 15

# Sketch on YZ plane
sketch17 = doc.addObject("Sketcher::SketchObject", "Sketch016")
body.addObject(sketch17)
sketch17.AttachmentSupport = (doc.YZ_Plane, [""])
sketch17.MapMode = "FlatFace"
sketch17.AttachmentOffset = App.Placement(Vector(0, 0, -16.125), App.Rotation())
sketch17.addGeometry([
    Part.LineSegment(Vector(-43.8, 18, 0), Vector(-28.8, 18, 0)),
    Part.LineSegment(Vector(-28.8, 18, 0), Vector(-43.8, 14, 0)),
    Part.LineSegment(Vector(-43.8, 14, 0), Vector(-43.8, 18, 0)),
], False)
sketch17.addConstraint([
    Sketcher.Constraint("Coincident", 0, 2, 1, 1),
    Sketcher.Constraint("Coincident", 1, 2, 2, 1),
    Sketcher.Constraint("Coincident", 2, 2, 0, 1),
    Sketcher.Constraint("Horizontal", 0),
    Sketcher.Constraint("Vertical", 2),
    Sketcher.Constraint("DistanceX", 0, 1, 0, 2, Q("15 mm")),
    Sketcher.Constraint("DistanceY", 2, 1, 2, 2, Q("4 mm")),
    Sketcher.Constraint("DistanceY", -1, 1, 0, 2, Q("18 mm")),
    Sketcher.Constraint("DistanceX", 0, 2, -1, 1, Q("28.825 mm")),
])
pocket4 = doc.addObject("PartDesign::Pocket", "Pocket003")
body.addObject(pocket4)
pocket4.Profile = sketch17
pocket4.Type = "ThroughAll"
pocket4.Midplane = True

# Sketch on XY plane
sketch18 = doc.addObject("Sketcher::SketchObject", "Sketch017")
body.addObject(sketch18)
sketch18.AttachmentSupport = (doc.XY_Plane, [""])
sketch18.MapMode = "FlatFace"
sketch18.AttachmentOffset = App.Placement(Vector(0, 0, 16), App.Rotation())
sketch18.addGeometry([
    Part.LineSegment(Vector(35.4, -10.1, 0), Vector(35.4, -46.5, 0)),  # 0
    Part.LineSegment(Vector(35.4, -46.5, 0), Vector(-34.8, -46.5, 0)),  # 1
    Part.LineSegment(Vector(-34.8, -46.5, 0), Vector(-34.8, -10.1, 0)),  # 2
    Part.LineSegment(Vector(-34.8, -10.1, 0), Vector(35.4, -10.1, 0)),  # 3
    Part.ArcOfCircle(Part.Circle(Vector(29.2, -16.1, 0), Vector(0, 0, 1), 3.2), math.radians(0), math.radians(90)),  # 4
    Part.LineSegment(Vector(29.2, -12.8, 0), Vector(-29.2, -12.8, 0)),  # 5
    Part.ArcOfCircle(Part.Circle(Vector(-29.2, -16.1, 0), Vector(0, 0, 1), 3.2), math.radians(90), math.radians(180)),  # 6
    Part.LineSegment(Vector(-32.5, -16.1, 0), Vector(-32.5, -39.6, 0)),  # 7
    Part.ArcOfCircle(Part.Circle(Vector(-29.2, -39.6, 0), Vector(0, 0, 1), 3.2), math.radians(180), math.radians(270)),  # 8
    Part.LineSegment(Vector(-29.2, -42.8, 0), Vector(29.2, -42.8, 0)),  # 9
    Part.ArcOfCircle(Part.Circle(Vector(29.2, -39.6, 0), Vector(0, 0, 1), 3.2), math.radians(-90), math.radians(0)),  # 10
    Part.LineSegment(Vector(32.5, -39.6, 0), Vector(32.5, -16.1, 0)),  # 11
], False)
sketch18.addConstraint([
    Sketcher.Constraint("Coincident", 0, 2, 1, 1),
    Sketcher.Constraint("Coincident", 1, 2, 2, 1),
    Sketcher.Constraint("Coincident", 2, 2, 3, 1),
    Sketcher.Constraint("Coincident", 3, 2, 0, 1),
    Sketcher.Constraint("Tangent", 4, 2, 5, 1),
    Sketcher.Constraint("Tangent", 5, 2, 6, 1),
    Sketcher.Constraint("Tangent", 6, 2, 7, 1),
    Sketcher.Constraint("Tangent", 7, 2, 8, 1),
    Sketcher.Constraint("Tangent", 8, 2, 9, 1),
    Sketcher.Constraint("Tangent", 9, 2, 10, 1),
    Sketcher.Constraint("Tangent", 10, 2, 11, 1),
    Sketcher.Constraint("Tangent", 11, 2, 4, 1),
    Sketcher.Constraint("Vertical", 0),
    Sketcher.Constraint("Horizontal", 1),
    Sketcher.Constraint("Vertical", 2),
    Sketcher.Constraint("Horizontal", 3),
    Sketcher.Constraint("Horizontal", 5),
    Sketcher.Constraint("Vertical", 7),
    Sketcher.Constraint("Horizontal", 9),
    Sketcher.Constraint("Vertical", 11),
    Sketcher.Constraint("Equal", 4, 6),
    Sketcher.Constraint("Equal", 6, 8),
    Sketcher.Constraint("Equal", 8, 10),
    Sketcher.Constraint("Radius", 4, Q("3.25 mm")),
    Sketcher.Constraint("DistanceX", 5, 2, 5, 1, Q("58.5 mm")),
    Sketcher.Constraint("DistanceY", 7, 2, 7, 1, Q("23.5 mm")),
    Sketcher.Constraint("DistanceX", 6, 2, -1, 1, Q("32.5 mm")),
    Sketcher.Constraint("DistanceY", 4, 3, -1, 1, Q("16.075 mm")),
    Sketcher.Constraint("DistanceX", 1, 2, 1, 1, Q("70.203982 mm")),
    Sketcher.Constraint("DistanceY", 0, 2, 0, 1, Q("36.481545 mm")),
    Sketcher.Constraint("DistanceX", -1, 1, 0, 2, Q("35.396729 mm")),
    Sketcher.Constraint("DistanceY", 0, 2, -1, 1, Q("46.540322 mm")),
])
pocket5 = doc.addObject("PartDesign::Pocket", "Pocket004")
body.addObject(pocket5)
pocket5.Profile = sketch18
pocket5.Length = 5

# Sketch on XY plane
sketch19 = doc.addObject("Sketcher::SketchObject", "Sketch018")
body.addObject(sketch19)
sketch19.AttachmentSupport = (doc.XY_Plane, [""])
sketch19.MapMode = "FlatFace"
sketch19.AttachmentOffset = App.Placement(Vector(0, 0, 15.8), App.Rotation())
sketch19.addGeometry([
    Part.Circle(Vector(-29.2, -16.1, 0), Vector(0, 0, 1), 3.2),
    Part.Circle(Vector(29.2, -16.1, 0), Vector(0, 0, 1), 3.2),
    Part.Circle(Vector(-29.2, -39.6, 0), Vector(0, 0, 1), 3.2),
    Part.Circle(Vector(29.2, -39.6, 0), Vector(0, 0, 1), 3.2),
], False)
sketch19.addConstraint([
    Sketcher.Constraint("Equal", 0, 1),
    Sketcher.Constraint("Equal", 1, 2),
    Sketcher.Constraint("Equal", 2, 3),
    Sketcher.Constraint("Symmetric", 0, 3, 1, 3, -2),
    Sketcher.Constraint("Symmetric", 2, 3, 3, 3, -2),
    Sketcher.Constraint("Vertical", 0, 3, 2, 3),
    Sketcher.Constraint("Diameter", 0, Q("6.5 mm")),
    Sketcher.Constraint("DistanceX", 0, 3, 1, 3, Q("58.5 mm")),
    Sketcher.Constraint("DistanceY", 2, 3, 0, 3, Q("23.5 mm")),
    Sketcher.Constraint("DistanceY", 0, 3, -1, 1, Q("16.075 mm")),
])
pad14 = doc.addObject("PartDesign::Pad", "Pad013")
body.addObject(pad14)
pad14.Profile = sketch19
pad14.Length = 4.8
pad14.Reversed = True

doc.recompute()
